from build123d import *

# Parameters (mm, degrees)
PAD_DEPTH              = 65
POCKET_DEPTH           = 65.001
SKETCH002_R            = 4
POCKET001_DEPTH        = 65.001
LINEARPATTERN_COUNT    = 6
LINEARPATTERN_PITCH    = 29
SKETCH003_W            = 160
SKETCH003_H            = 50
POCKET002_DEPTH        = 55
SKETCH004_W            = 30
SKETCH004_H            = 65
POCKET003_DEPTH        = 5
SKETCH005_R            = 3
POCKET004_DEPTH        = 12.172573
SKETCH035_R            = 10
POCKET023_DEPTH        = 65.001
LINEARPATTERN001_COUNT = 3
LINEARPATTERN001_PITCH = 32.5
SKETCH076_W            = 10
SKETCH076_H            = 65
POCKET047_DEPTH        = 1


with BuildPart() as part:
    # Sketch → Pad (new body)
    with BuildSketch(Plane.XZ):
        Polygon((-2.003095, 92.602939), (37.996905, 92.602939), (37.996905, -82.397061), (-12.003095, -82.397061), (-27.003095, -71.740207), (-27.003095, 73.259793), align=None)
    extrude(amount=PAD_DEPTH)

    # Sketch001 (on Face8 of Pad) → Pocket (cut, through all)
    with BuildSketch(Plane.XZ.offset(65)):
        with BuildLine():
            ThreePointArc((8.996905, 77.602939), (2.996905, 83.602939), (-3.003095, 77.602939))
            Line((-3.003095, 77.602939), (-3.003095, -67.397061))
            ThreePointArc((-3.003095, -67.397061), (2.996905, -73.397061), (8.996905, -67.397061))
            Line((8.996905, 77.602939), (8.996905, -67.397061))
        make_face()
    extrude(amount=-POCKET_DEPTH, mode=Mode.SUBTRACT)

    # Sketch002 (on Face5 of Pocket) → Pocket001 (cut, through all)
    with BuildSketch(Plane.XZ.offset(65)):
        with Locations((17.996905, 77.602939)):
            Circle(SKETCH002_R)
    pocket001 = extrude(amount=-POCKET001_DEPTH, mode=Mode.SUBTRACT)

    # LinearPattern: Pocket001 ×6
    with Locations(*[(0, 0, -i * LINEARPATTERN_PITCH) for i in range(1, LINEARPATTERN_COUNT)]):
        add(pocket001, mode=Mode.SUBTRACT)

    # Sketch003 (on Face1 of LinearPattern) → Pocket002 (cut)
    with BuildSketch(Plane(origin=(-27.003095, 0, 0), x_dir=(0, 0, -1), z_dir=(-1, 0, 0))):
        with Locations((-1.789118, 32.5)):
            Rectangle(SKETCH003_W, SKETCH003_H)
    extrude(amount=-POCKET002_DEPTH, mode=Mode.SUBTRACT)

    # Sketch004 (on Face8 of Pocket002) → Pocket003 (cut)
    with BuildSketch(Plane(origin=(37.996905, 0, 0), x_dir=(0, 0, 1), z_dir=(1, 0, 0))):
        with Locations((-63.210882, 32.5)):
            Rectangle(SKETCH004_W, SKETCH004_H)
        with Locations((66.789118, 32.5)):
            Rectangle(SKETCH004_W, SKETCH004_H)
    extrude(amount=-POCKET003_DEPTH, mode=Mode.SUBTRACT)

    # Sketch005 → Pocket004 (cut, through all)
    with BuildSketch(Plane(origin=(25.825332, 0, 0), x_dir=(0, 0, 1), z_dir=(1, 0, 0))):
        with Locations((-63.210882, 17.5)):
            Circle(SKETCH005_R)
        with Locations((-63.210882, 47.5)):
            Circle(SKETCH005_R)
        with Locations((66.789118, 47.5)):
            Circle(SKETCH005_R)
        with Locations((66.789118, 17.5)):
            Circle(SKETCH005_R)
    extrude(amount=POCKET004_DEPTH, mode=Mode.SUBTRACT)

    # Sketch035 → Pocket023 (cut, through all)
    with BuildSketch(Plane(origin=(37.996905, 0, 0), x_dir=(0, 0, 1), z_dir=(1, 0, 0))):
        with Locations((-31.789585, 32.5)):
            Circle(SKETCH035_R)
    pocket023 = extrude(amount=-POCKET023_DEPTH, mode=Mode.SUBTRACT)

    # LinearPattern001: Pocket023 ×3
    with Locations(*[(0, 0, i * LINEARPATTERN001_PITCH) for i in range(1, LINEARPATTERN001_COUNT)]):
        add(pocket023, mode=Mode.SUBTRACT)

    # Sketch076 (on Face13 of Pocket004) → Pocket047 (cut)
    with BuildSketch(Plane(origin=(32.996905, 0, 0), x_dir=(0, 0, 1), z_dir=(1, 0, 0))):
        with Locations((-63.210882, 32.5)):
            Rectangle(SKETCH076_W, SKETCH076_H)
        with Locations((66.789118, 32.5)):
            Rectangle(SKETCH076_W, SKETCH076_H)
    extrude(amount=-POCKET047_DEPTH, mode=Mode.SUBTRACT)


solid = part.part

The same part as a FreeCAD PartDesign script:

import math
import FreeCAD as App
import Part
import Sketcher

V = App.Vector

doc = App.newDocument("Part")
body = doc.addObject("PartDesign::Body", "Body")

# Sketch on XZ plane
sketch1 = body.newObject("Sketcher::SketchObject", "Sketch")
sketch1.AttachmentSupport = (doc.getObject("XZ_Plane"), [""])
sketch1.MapMode = "FlatFace"
sketch1.addGeometry(Part.LineSegment(V(38, 93, 0), V(-2, 93, 0)), False)
sketch1.addGeometry(Part.LineSegment(V(-2, 93, 0), V(-27, 73, 0)), False)
sketch1.addGeometry(Part.LineSegment(V(-27, 73, 0), V(-27, -72, 0)), False)
sketch1.addGeometry(Part.LineSegment(V(-27, -72, 0), V(-12, -82, 0)), False)
sketch1.addGeometry(Part.LineSegment(V(-12, -82, 0), V(38, -82, 0)), False)
sketch1.addGeometry(Part.LineSegment(V(38, -82, 0), V(38, 93, 0)), False)
sketch1.addConstraint(Sketcher.Constraint("Coincident", 0, 2, 1, 1))
sketch1.addConstraint(Sketcher.Constraint("Coincident", 1, 2, 2, 1))
sketch1.addConstraint(Sketcher.Constraint("Coincident", 2, 2, 3, 1))
sketch1.addConstraint(Sketcher.Constraint("Coincident", 3, 2, 4, 1))
sketch1.addConstraint(Sketcher.Constraint("Coincident", 4, 2, 5, 1))
sketch1.addConstraint(Sketcher.Constraint("Coincident", 5, 2, 0, 1))
sketch1.addConstraint(Sketcher.Constraint("Horizontal", 0))
sketch1.addConstraint(Sketcher.Constraint("Vertical", 2))
sketch1.addConstraint(Sketcher.Constraint("Horizontal", 4))
sketch1.addConstraint(Sketcher.Constraint("Vertical", 5))
sketch1.addConstraint(Sketcher.Constraint("DistanceX", 0, 2, 0, 1, 40.0))
sketch1.addConstraint(Sketcher.Constraint("DistanceX", 4, 1, 4, 2, 50.0))
sketch1.addConstraint(Sketcher.Constraint("DistanceY", 2, 2, 2, 1, 145.0))
sketch1.addConstraint(Sketcher.Constraint("DistanceY", 5, 1, 5, 2, 175.0))
sketch1.addConstraint(Sketcher.Constraint("DistanceX", 1, 2, 0, 2, 25.0))
sketch1.addConstraint(Sketcher.Constraint("Distance", 1, 31.609449))
sketch1.addConstraint(Sketcher.Constraint("DistanceY", -1, 1, 0, 2, 92.602939))
sketch1.addConstraint(Sketcher.Constraint("DistanceX", 0, 2, -1, 1, 2.003095))
pad1 = body.newObject("PartDesign::Pad", "Pad")
pad1.Profile = sketch1
pad1.Length = 65

# Sketch on XZ plane
sketch2 = body.newObject("Sketcher::SketchObject", "Sketch001")
sketch2.AttachmentSupport = (doc.getObject("XZ_Plane"), [""])
sketch2.MapMode = "FlatFace"
sketch2.AttachmentOffset = App.Placement(V(0, 0, 65), App.Rotation())
sketch2.addGeometry(Part.ArcOfCircle(Part.Circle(V(3, 78, 0), V(0, 0, 1), 6), math.radians(0), math.radians(180)), False)
sketch2.addGeometry(Part.LineSegment(V(-3, 78, 0), V(-3, -67, 0)), False)
sketch2.addGeometry(Part.ArcOfCircle(Part.Circle(V(3, -67, 0), V(0, 0, 1), 6), math.radians(180), math.radians(360)), False)
sketch2.addGeometry(Part.LineSegment(V(9, -67, 0), V(9, 78, 0)), False)
sketch2.addConstraint(Sketcher.Constraint("Tangent", 0, 2, 1, 1))
sketch2.addConstraint(Sketcher.Constraint("Tangent", 1, 2, 2, 1))
sketch2.addConstraint(Sketcher.Constraint("Tangent", 2, 2, 3, 1))
sketch2.addConstraint(Sketcher.Constraint("Tangent", 3, 2, 0, 1))
sketch2.addConstraint(Sketcher.Constraint("Vertical", 1))
sketch2.addConstraint(Sketcher.Constraint("Vertical", 3))
sketch2.addConstraint(Sketcher.Constraint("Radius", 0, 6.0))
sketch2.addConstraint(Sketcher.Constraint("DistanceY", 1, 2, 1, 1, 145.0))
sketch2.addConstraint(Sketcher.Constraint("DistanceY", -1, 1, 0, 3, 77.602939))
sketch2.addConstraint(Sketcher.Constraint("DistanceX", -1, 1, 0, 3, 2.996905))
pocket1 = body.newObject("PartDesign::Pocket", "Pocket")
pocket1.Profile = sketch2
pocket1.Type = "ThroughAll"

# Sketch on XZ plane
sketch3 = body.newObject("Sketcher::SketchObject", "Sketch002")
sketch3.AttachmentSupport = (doc.getObject("XZ_Plane"), [""])
sketch3.MapMode = "FlatFace"
sketch3.AttachmentOffset = App.Placement(V(0, 0, 65), App.Rotation())
sketch3.addGeometry(Part.Circle(V(18, 77.6, 0), V(0, 0, 1), 4), False)
sketch3.addConstraint(Sketcher.Constraint("Diameter", 0, 8.0))
sketch3.addConstraint(Sketcher.Constraint("DistanceY", -1, 1, 0, 3, 77.602939))
sketch3.addConstraint(Sketcher.Constraint("DistanceX", -1, 1, 0, 3, 17.996905))
pocket2 = body.newObject("PartDesign::Pocket", "Pocket001")
pocket2.Profile = sketch3
pocket2.Type = "ThroughAll"
doc.recompute()

linearpattern = body.newObject("PartDesign::LinearPattern", "LinearPattern")
linearpattern.Originals = [pocket2]
linearpattern.Direction = (doc.getObject("Z_Axis"), [""])
linearpattern.Mode = "offset"
linearpattern.Offset = 29
linearpattern.Occurrences = 6
linearpattern.Reversed = True
body.Tip = linearpattern

# Sketch on YZ plane
sketch4 = body.newObject("Sketcher::SketchObject", "Sketch003")
sketch4.AttachmentSupport = (doc.getObject("YZ_Plane"), [""])
sketch4.MapMode = "FlatFace"
sketch4.AttachmentOffset = App.Placement(V(0, 0, -27.003095), App.Rotation())
sketch4.addGeometry(Part.LineSegment(V(-58, 82, 0), V(-8, 82, 0)), False)
sketch4.addGeometry(Part.LineSegment(V(-8, 82, 0), V(-8, -78, 0)), False)
sketch4.addGeometry(Part.LineSegment(V(-8, -78, 0), V(-58, -78, 0)), False)
sketch4.addGeometry(Part.LineSegment(V(-58, -78, 0), V(-58, 82, 0)), False)
sketch4.addConstraint(Sketcher.Constraint("Coincident", 0, 2, 1, 1))
sketch4.addConstraint(Sketcher.Constraint("Coincident", 1, 2, 2, 1))
sketch4.addConstraint(Sketcher.Constraint("Coincident", 2, 2, 3, 1))
sketch4.addConstraint(Sketcher.Constraint("Coincident", 3, 2, 0, 1))
sketch4.addConstraint(Sketcher.Constraint("Horizontal", 0))
sketch4.addConstraint(Sketcher.Constraint("Vertical", 1))
sketch4.addConstraint(Sketcher.Constraint("Horizontal", 2))
sketch4.addConstraint(Sketcher.Constraint("Vertical", 3))
sketch4.addConstraint(Sketcher.Constraint("DistanceX", 0, 1, 0, 2, 50.0))
sketch4.addConstraint(Sketcher.Constraint("DistanceY", 1, 2, 1, 1, 160.0))
sketch4.addConstraint(Sketcher.Constraint("DistanceX", 0, 2, -1, 1, 7.5))
sketch4.addConstraint(Sketcher.Constraint("DistanceY", -1, 1, 0, 2, 81.789118))
pocket3 = body.newObject("PartDesign::Pocket", "Pocket002")
pocket3.Profile = sketch4
pocket3.Length = 55
pocket3.Reversed = True

# Sketch on YZ plane
sketch5 = body.newObject("Sketcher::SketchObject", "Sketch004")
sketch5.AttachmentSupport = (doc.getObject("YZ_Plane"), [""])
sketch5.MapMode = "FlatFace"
sketch5.AttachmentOffset = App.Placement(V(0, 0, 37.996905), App.Rotation())
sketch5.addGeometry(Part.LineSegment(V(-65, -78, 0), V(0, -78, 0)), False)
sketch5.addGeometry(Part.LineSegment(V(0, -78, 0), V(0, -48, 0)), False)
sketch5.addGeometry(Part.LineSegment(V(0, -48, 0), V(-65, -48, 0)), False)
sketch5.addGeometry(Part.LineSegment(V(-65, -48, 0), V(-65, -78, 0)), False)
sketch5.addGeometry(Part.LineSegment(V(-65, 52, 0), V(0, 52, 0)), False)
sketch5.addGeometry(Part.LineSegment(V(0, 52, 0), V(0, 82, 0)), False)
sketch5.addGeometry(Part.LineSegment(V(0, 82, 0), V(-65, 82, 0)), False)
sketch5.addGeometry(Part.LineSegment(V(-65, 82, 0), V(-65, 52, 0)), False)
sketch5.addConstraint(Sketcher.Constraint("Coincident", 0, 2, 1, 1))
sketch5.addConstraint(Sketcher.Constraint("Coincident", 1, 2, 2, 1))
sketch5.addConstraint(Sketcher.Constraint("Coincident", 2, 2, 3, 1))
sketch5.addConstraint(Sketcher.Constraint("Coincident", 3, 2, 0, 1))
sketch5.addConstraint(Sketcher.Constraint("Coincident", 4, 2, 5, 1))
sketch5.addConstraint(Sketcher.Constraint("Coincident", 5, 2, 6, 1))
sketch5.addConstraint(Sketcher.Constraint("Coincident", 6, 2, 7, 1))
sketch5.addConstraint(Sketcher.Constraint("Coincident", 7, 2, 4, 1))
sketch5.addConstraint(Sketcher.Constraint("Horizontal", 0))
sketch5.addConstraint(Sketcher.Constraint("Vertical", 1))
sketch5.addConstraint(Sketcher.Constraint("Horizontal", 2))
sketch5.addConstraint(Sketcher.Constraint("Vertical", 3))
sketch5.addConstraint(Sketcher.Constraint("Horizontal", 4))
sketch5.addConstraint(Sketcher.Constraint("Vertical", 5))
sketch5.addConstraint(Sketcher.Constraint("Horizontal", 6))
sketch5.addConstraint(Sketcher.Constraint("Vertical", 7))
sketch5.addConstraint(Sketcher.Constraint("PointOnObject", 0, 2, -2))
sketch5.addConstraint(Sketcher.Constraint("PointOnObject", 4, 2, -2))
sketch5.addConstraint(Sketcher.Constraint("Vertical", 3, 2, 6, 2))
sketch5.addConstraint(Sketcher.Constraint("Equal", 3, 5))
sketch5.addConstraint(Sketcher.Constraint("DistanceX", 0, 1, 0, 2, 65.0))
sketch5.addConstraint(Sketcher.Constraint("DistanceY", 1, 1, 1, 2, 30.0))
sketch5.addConstraint(Sketcher.Constraint("DistanceY", 1, 2, 4, 2, 100.0))
sketch5.addConstraint(Sketcher.Constraint("DistanceY", 0, 2, -1, 1, 78.210882))
pocket4 = body.newObject("PartDesign::Pocket", "Pocket003")
pocket4.Profile = sketch5
pocket4.Length = 5

# Sketch on YZ plane
sketch6 = body.newObject("Sketcher::SketchObject", "Sketch005")
sketch6.AttachmentSupport = (doc.getObject("YZ_Plane"), [""])
sketch6.MapMode = "FlatFace"
sketch6.AttachmentOffset = App.Placement(V(0, 0, 25.825332), App.Rotation())
sketch6.addGeometry(Part.Circle(V(-17.5, -63.2, 0), V(0, 0, 1), 3), False)
sketch6.addGeometry(Part.Circle(V(-47.5, -63.2, 0), V(0, 0, 1), 3), False)
sketch6.addGeometry(Part.Circle(V(-47.5, 66.8, 0), V(0, 0, 1), 3), False)
sketch6.addGeometry(Part.Circle(V(-17.5, 66.8, 0), V(0, 0, 1), 3), False)
sketch6.addConstraint(Sketcher.Constraint("Equal", 0, 1))
sketch6.addConstraint(Sketcher.Constraint("Equal", 1, 2))
sketch6.addConstraint(Sketcher.Constraint("Equal", 2, 3))
sketch6.addConstraint(Sketcher.Constraint("Horizontal", 0, 3, 1, 3))
sketch6.addConstraint(Sketcher.Constraint("Horizontal", 2, 3, 3, 3))
sketch6.addConstraint(Sketcher.Constraint("Vertical", 1, 3, 2, 3))
sketch6.addConstraint(Sketcher.Constraint("Vertical", 0, 3, 3, 3))
sketch6.addConstraint(Sketcher.Constraint("Diameter", 0, 6.0))
sketch6.addConstraint(Sketcher.Constraint("DistanceX", 1, 3, 0, 3, 30.0))
sketch6.addConstraint(Sketcher.Constraint("DistanceY", 1, 3, 2, 3, 130.0))
sketch6.addConstraint(Sketcher.Constraint("DistanceX", 0, 3, -1, 1, 17.5))
sketch6.addConstraint(Sketcher.Constraint("DistanceY", 0, 3, -1, 1, 63.210882))
pocket5 = body.newObject("PartDesign::Pocket", "Pocket004")
pocket5.Profile = sketch6
pocket5.Type = "ThroughAll"
pocket5.Reversed = True

# Sketch on YZ plane
sketch7 = body.newObject("Sketcher::SketchObject", "Sketch006")
sketch7.AttachmentSupport = (doc.getObject("YZ_Plane"), [""])
sketch7.MapMode = "FlatFace"
sketch7.AttachmentOffset = App.Placement(V(0, 0, 37.996905), App.Rotation())
sketch7.addGeometry(Part.Circle(V(-32, -32, 0), V(0, 0, 1), 10), False)
sketch7.addConstraint(Sketcher.Constraint("Diameter", 0, 20.0))
sketch7.addConstraint(Sketcher.Constraint("DistanceX", 0, 3, -1, 1, 32.5))
sketch7.addConstraint(Sketcher.Constraint("DistanceY", 0, 3, -1, 1, 31.789585))
pocket6 = body.newObject("PartDesign::Pocket", "Pocket005")
pocket6.Profile = sketch7
pocket6.Type = "ThroughAll"
doc.recompute()

linearpattern2 = body.newObject("PartDesign::LinearPattern", "LinearPattern001")
linearpattern2.Originals = [pocket6]
linearpattern2.Direction = (doc.getObject("Z_Axis"), [""])
linearpattern2.Mode = "offset"
linearpattern2.Offset = 32.5
linearpattern2.Occurrences = 3
body.Tip = linearpattern2

# Sketch on YZ plane
sketch8 = body.newObject("Sketcher::SketchObject", "Sketch007")
sketch8.AttachmentSupport = (doc.getObject("YZ_Plane"), [""])
sketch8.MapMode = "FlatFace"
sketch8.AttachmentOffset = App.Placement(V(0, 0, 32.996905), App.Rotation())
sketch8.addGeometry(Part.LineSegment(V(-65, -68, 0), V(0, -68, 0)), False)
sketch8.addGeometry(Part.LineSegment(V(0, -68, 0), V(0, -58, 0)), False)
sketch8.addGeometry(Part.LineSegment(V(0, -58, 0), V(-65, -58, 0)), False)
sketch8.addGeometry(Part.LineSegment(V(-65, -58, 0), V(-65, -68, 0)), False)
sketch8.addGeometry(Part.LineSegment(V(-65, 62, 0), V(0, 62, 0)), False)
sketch8.addGeometry(Part.LineSegment(V(0, 62, 0), V(0, 72, 0)), False)
sketch8.addGeometry(Part.LineSegment(V(0, 72, 0), V(-65, 72, 0)), False)
sketch8.addGeometry(Part.LineSegment(V(-65, 72, 0), V(-65, 62, 0)), False)
sketch8.addConstraint(Sketcher.Constraint("Coincident", 0, 2, 1, 1))
sketch8.addConstraint(Sketcher.Constraint("Coincident", 1, 2, 2, 1))
sketch8.addConstraint(Sketcher.Constraint("Coincident", 2, 2, 3, 1))
sketch8.addConstraint(Sketcher.Constraint("Coincident", 3, 2, 0, 1))
sketch8.addConstraint(Sketcher.Constraint("Coincident", 4, 2, 5, 1))
sketch8.addConstraint(Sketcher.Constraint("Coincident", 5, 2, 6, 1))
sketch8.addConstraint(Sketcher.Constraint("Coincident", 6, 2, 7, 1))
sketch8.addConstraint(Sketcher.Constraint("Coincident", 7, 2, 4, 1))
sketch8.addConstraint(Sketcher.Constraint("Horizontal", 0))
sketch8.addConstraint(Sketcher.Constraint("Vertical", 1))
sketch8.addConstraint(Sketcher.Constraint("Horizontal", 2))
sketch8.addConstraint(Sketcher.Constraint("Vertical", 3))
sketch8.addConstraint(Sketcher.Constraint("Horizontal", 4))
sketch8.addConstraint(Sketcher.Constraint("Vertical", 5))
sketch8.addConstraint(Sketcher.Constraint("Horizontal", 6))
sketch8.addConstraint(Sketcher.Constraint("Vertical", 7))
sketch8.addConstraint(Sketcher.Constraint("PointOnObject", 0, 2, -2))
sketch8.addConstraint(Sketcher.Constraint("PointOnObject", 4, 2, -2))
sketch8.addConstraint(Sketcher.Constraint("Vertical", 3, 2, 6, 2))
sketch8.addConstraint(Sketcher.Constraint("Equal", 3, 5))
sketch8.addConstraint(Sketcher.Constraint("DistanceX", 0, 1, 0, 2, 65.0))
sketch8.addConstraint(Sketcher.Constraint("DistanceY", 1, 1, 1, 2, 10.0))
sketch8.addConstraint(Sketcher.Constraint("DistanceY", 1, 2, 4, 2, 120.0))
sketch8.addConstraint(Sketcher.Constraint("DistanceY", 0, 2, -1, 1, 68.210882))
pocket7 = body.newObject("PartDesign::Pocket", "Pocket006")
pocket7.Profile = sketch8
pocket7.Length = 1

doc.recompute()
